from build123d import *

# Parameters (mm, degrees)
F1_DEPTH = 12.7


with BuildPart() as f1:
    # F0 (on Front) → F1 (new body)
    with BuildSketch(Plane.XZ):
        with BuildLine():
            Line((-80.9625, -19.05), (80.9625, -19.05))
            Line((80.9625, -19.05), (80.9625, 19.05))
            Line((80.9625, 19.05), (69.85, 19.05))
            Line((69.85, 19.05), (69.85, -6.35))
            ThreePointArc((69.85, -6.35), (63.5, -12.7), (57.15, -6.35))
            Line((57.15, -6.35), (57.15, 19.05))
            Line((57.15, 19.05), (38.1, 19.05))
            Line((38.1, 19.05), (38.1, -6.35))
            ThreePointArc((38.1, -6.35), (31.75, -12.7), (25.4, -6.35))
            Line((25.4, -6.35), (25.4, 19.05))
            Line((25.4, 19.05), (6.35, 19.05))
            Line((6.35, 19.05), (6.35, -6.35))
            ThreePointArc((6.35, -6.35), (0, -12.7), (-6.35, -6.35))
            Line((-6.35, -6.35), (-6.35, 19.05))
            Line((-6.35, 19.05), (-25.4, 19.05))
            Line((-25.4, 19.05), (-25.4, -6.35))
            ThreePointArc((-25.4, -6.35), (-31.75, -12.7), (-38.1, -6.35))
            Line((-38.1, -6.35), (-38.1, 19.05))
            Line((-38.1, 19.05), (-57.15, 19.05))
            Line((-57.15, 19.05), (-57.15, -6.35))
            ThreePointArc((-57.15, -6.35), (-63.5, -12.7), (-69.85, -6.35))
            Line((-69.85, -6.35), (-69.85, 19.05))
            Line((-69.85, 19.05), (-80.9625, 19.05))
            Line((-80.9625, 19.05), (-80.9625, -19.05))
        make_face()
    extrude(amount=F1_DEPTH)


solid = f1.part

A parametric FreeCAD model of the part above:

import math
import FreeCAD as App
import Part
import Sketcher
from FreeCAD import Vector
Q = App.Units.Quantity

doc = App.newDocument("Part")
body = doc.addObject("PartDesign::Body", "Body")

# Sketch on XZ plane
sketch1 = body.newObject("Sketcher::SketchObject", "Sketch")
sketch1.AttachmentSupport = (doc.getObject("XZ_Plane"), [""])
sketch1.MapMode = "FlatFace"
sketch1.addGeometry([
    Part.LineSegment(Vector(-81, -19, 0), Vector(81, -19, 0)),  # 0
    Part.LineSegment(Vector(81, -19, 0), Vector(81, 19, 0)),  # 1
    Part.LineSegment(Vector(81, 19, 0), Vector(70, 19, 0)),  # 2
    Part.LineSegment(Vector(70, 19, 0), Vector(70, -6, 0)),  # 3
    Part.ArcOfCircle(Part.Circle(Vector(64, -6, 0), Vector(0, 0, 1), 6), math.radians(180), math.radians(360)),  # 4
    Part.LineSegment(Vector(57, -6, 0), Vector(57, 19, 0)),  # 5
    Part.LineSegment(Vector(57, 19, 0), Vector(38, 19, 0)),  # 6
    Part.LineSegment(Vector(38, 19, 0), Vector(38, -6, 0)),  # 7
    Part.ArcOfCircle(Part.Circle(Vector(32, -6, 0), Vector(0, 0, 1), 6), math.radians(180), math.radians(360)),  # 8
    Part.LineSegment(Vector(25, -6, 0), Vector(25, 19, 0)),  # 9
    Part.LineSegment(Vector(25, 19, 0), Vector(6, 19, 0)),  # 10
    Part.LineSegment(Vector(6, 19, 0), Vector(6, -6, 0)),  # 11
    Part.ArcOfCircle(Part.Circle(Vector(0, -6, 0), Vector(0, 0, 1), 6), math.radians(180), math.radians(360)),  # 12
    Part.LineSegment(Vector(-6, -6, 0), Vector(-6, 19, 0)),  # 13
    Part.LineSegment(Vector(-6, 19, 0), Vector(-25, 19, 0)),  # 14
    Part.LineSegment(Vector(-25, 19, 0), Vector(-25, -6, 0)),  # 15
    Part.ArcOfCircle(Part.Circle(Vector(-32, -6, 0), Vector(0, 0, 1), 6), math.radians(180), math.radians(360)),  # 16
    Part.LineSegment(Vector(-38, -6, 0), Vector(-38, 19, 0)),  # 17
    Part.LineSegment(Vector(-38, 19, 0), Vector(-57, 19, 0)),  # 18
    Part.LineSegment(Vector(-57, 19, 0), Vector(-57, -6, 0)),  # 19
    Part.ArcOfCircle(Part.Circle(Vector(-64, -6, 0), Vector(0, 0, 1), 6), math.radians(180), math.radians(360)),  # 20
    Part.LineSegment(Vector(-70, -6, 0), Vector(-70, 19, 0)),  # 21
    Part.LineSegment(Vector(-70, 19, 0), Vector(-81, 19, 0)),  # 22
    Part.LineSegment(Vector(-81, 19, 0), Vector(-81, -19, 0)),  # 23
], False)
sketch1.addConstraint([
    Sketcher.Constraint("Coincident", 0, 2, 1, 1),
    Sketcher.Constraint("Coincident", 1, 2, 2, 1),
    Sketcher.Constraint("Coincident", 2, 2, 3, 1),
    Sketcher.Constraint("Tangent", 3, 2, 4, 2),
    Sketcher.Constraint("Tangent", 4, 1, 5, 1),
    Sketcher.Constraint("Coincident", 5, 2, 6, 1),
    Sketcher.Constraint("Coincident", 6, 2, 7, 1),
    Sketcher.Constraint("Tangent", 7, 2, 8, 2),
    Sketcher.Constraint("Tangent", 8, 1, 9, 1),
    Sketcher.Constraint("Coincident", 9, 2, 10, 1),
    Sketcher.Constraint("Coincident", 10, 2, 11, 1),
    Sketcher.Constraint("Tangent", 11, 2, 12, 2),
    Sketcher.Constraint("Tangent", 12, 1, 13, 1),
    Sketcher.Constraint("Coincident", 13, 2, 14, 1),
    Sketcher.Constraint("Coincident", 14, 2, 15, 1),
    Sketcher.Constraint("Tangent", 15, 2, 16, 2),
    Sketcher.Constraint("Tangent", 16, 1, 17, 1),
    Sketcher.Constraint("Coincident", 17, 2, 18, 1),
    Sketcher.Constraint("Coincident", 18, 2, 19, 1),
    Sketcher.Constraint("Tangent", 19, 2, 20, 2),
    Sketcher.Constraint("Tangent", 20, 1, 21, 1),
    Sketcher.Constraint("Coincident", 21, 2, 22, 1),
    Sketcher.Constraint("Coincident", 22, 2, 23, 1),
    Sketcher.Constraint("Coincident", 23, 2, 0, 1),
    Sketcher.Constraint("Horizontal", 0),
    Sketcher.Constraint("Vertical", 1),
    Sketcher.Constraint("Horizontal", 2),
    Sketcher.Constraint("Vertical", 3),
    Sketcher.Constraint("Vertical", 5),
    Sketcher.Constraint("Horizontal", 6),
    Sketcher.Constraint("Vertical", 7),
    Sketcher.Constraint("Vertical", 9),
    Sketcher.Constraint("Horizontal", 10),
    Sketcher.Constraint("Vertical", 11),
    Sketcher.Constraint("Vertical", 13),
    Sketcher.Constraint("Horizontal", 14),
    Sketcher.Constraint("Vertical", 15),
    Sketcher.Constraint("Vertical", 17),
    Sketcher.Constraint("Horizontal", 18),
    Sketcher.Constraint("Vertical", 19),
    Sketcher.Constraint("Vertical", 21),
    Sketcher.Constraint("Horizontal", 22),
    Sketcher.Constraint("Vertical", 23),
    Sketcher.Constraint("Equal", 4, 8),
    Sketcher.Constraint("Equal", 8, 12),
    Sketcher.Constraint("Equal", 12, 16),
    Sketcher.Constraint("Equal", 16, 20),
    Sketcher.Constraint("Symmetric", 0, 2, 22, 2, -1, 1),
    Sketcher.Constraint("Symmetric", 8, 3, 16, 3, -2),
    Sketcher.Constraint("Symmetric", 4, 3, 20, 3, -2),
    Sketcher.Constraint("Symmetric", 10, 2, 13, 2, -2),
    Sketcher.Constraint("Horizontal", 4, 3, 8, 3),
    Sketcher.Constraint("Horizontal", 8, 3, 12, 3),
    Sketcher.Constraint("Horizontal", 2, 2, 5, 2),
    Sketcher.Constraint("Horizontal", 6, 2, 9, 2),
    Sketcher.Constraint("Horizontal", 14, 2, 17, 2),
    Sketcher.Constraint("Horizontal", 18, 2, 21, 2),
    Sketcher.Constraint("Equal", 6, 10),
    Sketcher.Constraint("DistanceY", 3, 2, 3, 1, Q("1 in")),
    Sketcher.Constraint("Radius", 4, Q("0.25 in")),
    Sketcher.Constraint("DistanceY", 1, 1, 1, 2, Q("1.5 in")),
    Sketcher.Constraint("DistanceX", -1, 1, 8, 1, Q("1 in")),
    Sketcher.Constraint("DistanceX", 0, 1, 0, 2, Q("6.375 in")),
])
pad1 = body.newObject("PartDesign::Pad", "Pad")
pad1.Profile = sketch1
pad1.Length = Q("0.5 in")

doc.recompute()
